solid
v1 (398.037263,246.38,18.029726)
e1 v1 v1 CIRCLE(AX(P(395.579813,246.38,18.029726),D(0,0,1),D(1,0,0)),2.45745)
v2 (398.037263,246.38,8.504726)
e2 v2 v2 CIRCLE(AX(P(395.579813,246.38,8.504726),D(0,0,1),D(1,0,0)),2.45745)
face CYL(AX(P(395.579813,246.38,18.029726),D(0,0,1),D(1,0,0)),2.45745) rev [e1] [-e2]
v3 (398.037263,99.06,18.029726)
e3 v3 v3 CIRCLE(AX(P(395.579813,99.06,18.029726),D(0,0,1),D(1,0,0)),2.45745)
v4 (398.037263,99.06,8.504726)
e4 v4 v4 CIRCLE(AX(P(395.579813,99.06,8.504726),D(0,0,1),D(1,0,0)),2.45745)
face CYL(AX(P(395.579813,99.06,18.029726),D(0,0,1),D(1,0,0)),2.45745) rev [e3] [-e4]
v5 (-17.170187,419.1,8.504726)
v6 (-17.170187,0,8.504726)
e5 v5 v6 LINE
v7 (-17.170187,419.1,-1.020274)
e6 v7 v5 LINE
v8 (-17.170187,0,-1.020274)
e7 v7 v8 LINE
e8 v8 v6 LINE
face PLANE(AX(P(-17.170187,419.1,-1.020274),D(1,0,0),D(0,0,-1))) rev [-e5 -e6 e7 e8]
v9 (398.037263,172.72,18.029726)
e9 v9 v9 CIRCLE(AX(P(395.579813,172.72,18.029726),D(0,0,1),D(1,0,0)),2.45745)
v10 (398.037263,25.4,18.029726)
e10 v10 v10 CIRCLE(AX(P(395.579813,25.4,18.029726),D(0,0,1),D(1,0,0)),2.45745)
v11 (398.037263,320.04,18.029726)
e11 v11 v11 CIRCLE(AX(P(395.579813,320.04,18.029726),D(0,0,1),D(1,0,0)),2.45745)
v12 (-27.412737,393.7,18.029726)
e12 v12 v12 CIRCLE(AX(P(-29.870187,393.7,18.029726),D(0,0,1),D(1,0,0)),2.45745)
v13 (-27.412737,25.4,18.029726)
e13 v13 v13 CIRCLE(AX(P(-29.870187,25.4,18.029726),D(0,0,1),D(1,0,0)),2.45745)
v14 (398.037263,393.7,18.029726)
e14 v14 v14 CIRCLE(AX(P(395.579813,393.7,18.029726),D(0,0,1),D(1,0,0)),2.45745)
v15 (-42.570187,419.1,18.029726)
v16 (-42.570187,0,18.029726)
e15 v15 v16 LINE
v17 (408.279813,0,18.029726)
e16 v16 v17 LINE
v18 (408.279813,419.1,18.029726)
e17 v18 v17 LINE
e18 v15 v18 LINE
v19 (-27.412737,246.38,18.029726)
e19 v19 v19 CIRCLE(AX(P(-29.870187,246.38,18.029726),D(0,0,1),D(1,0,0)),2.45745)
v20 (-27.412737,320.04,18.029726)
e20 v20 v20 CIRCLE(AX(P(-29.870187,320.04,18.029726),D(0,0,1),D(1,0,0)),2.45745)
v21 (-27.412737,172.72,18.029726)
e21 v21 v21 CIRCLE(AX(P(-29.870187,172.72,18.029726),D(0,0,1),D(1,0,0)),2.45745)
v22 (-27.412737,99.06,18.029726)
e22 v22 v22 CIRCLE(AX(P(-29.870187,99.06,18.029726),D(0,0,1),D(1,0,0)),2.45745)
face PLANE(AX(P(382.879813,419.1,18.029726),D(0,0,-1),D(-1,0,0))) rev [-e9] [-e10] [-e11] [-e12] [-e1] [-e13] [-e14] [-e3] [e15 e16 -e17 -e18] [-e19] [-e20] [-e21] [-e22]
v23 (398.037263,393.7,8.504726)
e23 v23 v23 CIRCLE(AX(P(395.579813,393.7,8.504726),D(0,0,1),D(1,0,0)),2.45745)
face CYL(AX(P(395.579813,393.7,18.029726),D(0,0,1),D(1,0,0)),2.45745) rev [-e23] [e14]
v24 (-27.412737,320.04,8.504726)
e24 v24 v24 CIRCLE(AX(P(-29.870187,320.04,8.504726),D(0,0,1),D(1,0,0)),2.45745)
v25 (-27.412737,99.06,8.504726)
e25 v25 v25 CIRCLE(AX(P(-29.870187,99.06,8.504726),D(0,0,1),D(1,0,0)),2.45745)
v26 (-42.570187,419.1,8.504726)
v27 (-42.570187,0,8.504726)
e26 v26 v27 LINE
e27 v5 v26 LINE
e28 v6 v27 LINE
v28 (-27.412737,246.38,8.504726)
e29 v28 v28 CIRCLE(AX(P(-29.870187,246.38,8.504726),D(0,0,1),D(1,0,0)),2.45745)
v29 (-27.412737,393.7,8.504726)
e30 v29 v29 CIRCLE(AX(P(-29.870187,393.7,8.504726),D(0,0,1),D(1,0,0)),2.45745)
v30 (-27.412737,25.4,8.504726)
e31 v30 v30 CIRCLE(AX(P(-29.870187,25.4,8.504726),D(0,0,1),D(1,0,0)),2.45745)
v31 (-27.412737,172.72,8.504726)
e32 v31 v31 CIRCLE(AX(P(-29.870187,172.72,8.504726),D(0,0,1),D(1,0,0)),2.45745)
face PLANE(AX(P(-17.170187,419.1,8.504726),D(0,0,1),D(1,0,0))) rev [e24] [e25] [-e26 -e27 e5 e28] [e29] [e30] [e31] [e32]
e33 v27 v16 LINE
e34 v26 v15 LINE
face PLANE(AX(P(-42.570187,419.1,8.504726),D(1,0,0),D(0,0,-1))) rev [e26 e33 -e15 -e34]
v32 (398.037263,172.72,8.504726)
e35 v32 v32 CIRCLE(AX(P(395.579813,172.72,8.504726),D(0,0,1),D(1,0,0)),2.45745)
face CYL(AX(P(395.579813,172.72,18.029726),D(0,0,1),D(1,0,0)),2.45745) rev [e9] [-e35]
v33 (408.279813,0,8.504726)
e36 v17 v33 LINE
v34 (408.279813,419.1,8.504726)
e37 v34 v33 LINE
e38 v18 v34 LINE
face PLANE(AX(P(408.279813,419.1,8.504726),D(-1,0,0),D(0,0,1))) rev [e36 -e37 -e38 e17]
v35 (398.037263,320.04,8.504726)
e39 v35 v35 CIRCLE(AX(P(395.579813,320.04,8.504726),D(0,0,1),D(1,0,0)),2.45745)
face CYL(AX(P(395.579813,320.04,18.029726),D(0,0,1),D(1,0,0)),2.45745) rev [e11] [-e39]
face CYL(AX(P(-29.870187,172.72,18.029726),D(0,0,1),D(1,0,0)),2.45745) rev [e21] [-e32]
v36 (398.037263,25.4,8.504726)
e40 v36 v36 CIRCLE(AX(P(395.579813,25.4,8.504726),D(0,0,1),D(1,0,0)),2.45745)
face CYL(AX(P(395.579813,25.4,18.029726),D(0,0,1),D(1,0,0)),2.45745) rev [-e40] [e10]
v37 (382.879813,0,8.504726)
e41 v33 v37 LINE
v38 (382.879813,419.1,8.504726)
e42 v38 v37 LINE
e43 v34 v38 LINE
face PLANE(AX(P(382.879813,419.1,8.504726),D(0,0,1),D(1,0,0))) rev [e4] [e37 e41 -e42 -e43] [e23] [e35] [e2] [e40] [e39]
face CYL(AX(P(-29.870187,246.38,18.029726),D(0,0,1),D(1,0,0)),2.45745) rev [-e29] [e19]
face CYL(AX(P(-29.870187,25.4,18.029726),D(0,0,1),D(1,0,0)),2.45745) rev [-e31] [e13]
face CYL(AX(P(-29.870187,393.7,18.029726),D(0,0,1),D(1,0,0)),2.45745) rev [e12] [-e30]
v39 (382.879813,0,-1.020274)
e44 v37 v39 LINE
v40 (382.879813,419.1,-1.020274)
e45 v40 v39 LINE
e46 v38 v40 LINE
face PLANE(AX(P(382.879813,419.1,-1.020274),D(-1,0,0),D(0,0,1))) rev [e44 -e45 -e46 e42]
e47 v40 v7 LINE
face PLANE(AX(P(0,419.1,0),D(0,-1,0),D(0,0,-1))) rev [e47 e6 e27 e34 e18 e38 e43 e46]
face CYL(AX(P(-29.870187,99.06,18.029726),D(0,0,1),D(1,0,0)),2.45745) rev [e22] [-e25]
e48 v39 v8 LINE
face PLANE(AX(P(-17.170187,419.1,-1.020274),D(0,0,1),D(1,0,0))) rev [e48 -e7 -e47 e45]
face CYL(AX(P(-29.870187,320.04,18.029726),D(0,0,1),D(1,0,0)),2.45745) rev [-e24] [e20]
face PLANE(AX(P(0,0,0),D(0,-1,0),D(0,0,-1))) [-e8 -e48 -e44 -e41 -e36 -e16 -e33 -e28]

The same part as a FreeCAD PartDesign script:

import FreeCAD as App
import Part
import Sketcher
from FreeCAD import Vector
Q = App.Units.Quantity

doc = App.newDocument("Part")
body = doc.addObject("PartDesign::Body", "Body")

# Sketch on XZ plane
sketch1 = body.newObject("Sketcher::SketchObject", "Sketch")
sketch1.AttachmentSupport = (doc.getObject("XZ_Plane"), [""])
sketch1.MapMode = "FlatFace"
sketch1.addGeometry([
    Part.LineSegment(Vector(383, -1, 0), Vector(-17, -1, 0)),  # 0
    Part.LineSegment(Vector(-17, -1, 0), Vector(-17, 9, 0)),  # 1
    Part.LineSegment(Vector(-17, 9, 0), Vector(-43, 9, 0)),  # 2
    Part.LineSegment(Vector(-43, 9, 0), Vector(-43, 18, 0)),  # 3
    Part.LineSegment(Vector(-43, 18, 0), Vector(408, 18, 0)),  # 4
    Part.LineSegment(Vector(408, 18, 0), Vector(408, 9, 0)),  # 5
    Part.LineSegment(Vector(408, 9, 0), Vector(383, 9, 0)),  # 6
    Part.LineSegment(Vector(383, 9, 0), Vector(383, -1, 0)),  # 7
], False)
sketch1.addConstraint([
    Sketcher.Constraint("Coincident", 0, 2, 1, 1),
    Sketcher.Constraint("Coincident", 1, 2, 2, 1),
    Sketcher.Constraint("Coincident", 2, 2, 3, 1),
    Sketcher.Constraint("Coincident", 3, 2, 4, 1),
    Sketcher.Constraint("Coincident", 4, 2, 5, 1),
    Sketcher.Constraint("Coincident", 5, 2, 6, 1),
    Sketcher.Constraint("Coincident", 6, 2, 7, 1),
    Sketcher.Constraint("Coincident", 7, 2, 0, 1),
    Sketcher.Constraint("Horizontal", 0),
    Sketcher.Constraint("Vertical", 1),
    Sketcher.Constraint("Horizontal", 2),
    Sketcher.Constraint("Vertical", 3),
    Sketcher.Constraint("Horizontal", 4),
    Sketcher.Constraint("Vertical", 5),
    Sketcher.Constraint("Horizontal", 6),
    Sketcher.Constraint("Vertical", 7),
    Sketcher.Constraint("Horizontal", 2, 2, 5, 2),
    Sketcher.Constraint("Equal", 2, 6),
    Sketcher.Constraint("Equal", 1, 3),
    Sketcher.Constraint("DistanceX", 2, 2, 2, 1, Q("1 in")),
    Sketcher.Constraint("DistanceX", 0, 2, 0, 1, Q("15.75 in")),
    Sketcher.Constraint("DistanceY", 1, 1, 1, 2, Q("0.375 in")),
    Sketcher.Constraint("DistanceX", 0, 2, -1, 1, Q("17.170187 mm")),
    Sketcher.Constraint("DistanceY", 0, 2, -1, 1, Q("1.020274 mm")),
])
pad1 = body.newObject("PartDesign::Pad", "Pad")
pad1.Profile = sketch1
pad1.Length = Q("16.5 in")
pad1.Reversed = True

# Sketch on XY plane
sketch2 = body.newObject("Sketcher::SketchObject", "Sketch001")
sketch2.AttachmentSupport = (doc.getObject("XY_Plane"), [""])
sketch2.MapMode = "FlatFace"
sketch2.AttachmentOffset = App.Placement(Vector(0, 0, 18.029726), App.Rotation())
sketch2.addGeometry([
    Part.Circle(Vector(-29.9, 393.7, 0), Vector(0, 0, 1), 2.5),  # 0
    Part.Circle(Vector(-29.9, 320, 0), Vector(0, 0, 1), 2.5),  # 1
    Part.Circle(Vector(-29.9, 246.4, 0), Vector(0, 0, 1), 2.5),  # 2
    Part.Circle(Vector(-29.9, 172.7, 0), Vector(0, 0, 1), 2.5),  # 3
    Part.Circle(Vector(-29.9, 99.1, 0), Vector(0, 0, 1), 2.5),  # 4
    Part.Circle(Vector(-29.9, 25.4, 0), Vector(0, 0, 1), 2.5),  # 5
    Part.Circle(Vector(395.6, 25.4, 0), Vector(0, 0, 1), 2.5),  # 6
    Part.Circle(Vector(395.6, 99.1, 0), Vector(0, 0, 1), 2.5),  # 7
    Part.Circle(Vector(395.6, 172.7, 0), Vector(0, 0, 1), 2.5),  # 8
    Part.Circle(Vector(395.6, 246.4, 0), Vector(0, 0, 1), 2.5),  # 9
    Part.Circle(Vector(395.6, 320, 0), Vector(0, 0, 1), 2.5),  # 10
    Part.Circle(Vector(395.6, 393.7, 0), Vector(0, 0, 1), 2.5),  # 11
], False)
sketch2.addConstraint([
    Sketcher.Constraint("Equal", 0, 1),
    Sketcher.Constraint("Equal", 1, 2),
    Sketcher.Constraint("Equal", 2, 3),
    Sketcher.Constraint("Equal", 3, 4),
    Sketcher.Constraint("Equal", 4, 5),
    Sketcher.Constraint("Equal", 5, 6),
    Sketcher.Constraint("Equal", 6, 7),
    Sketcher.Constraint("Equal", 7, 8),
    Sketcher.Constraint("Equal", 8, 9),
    Sketcher.Constraint("Equal", 9, 10),
    Sketcher.Constraint("Equal", 10, 11),
    Sketcher.Constraint("Horizontal", 5, 3, 6, 3),
    Sketcher.Constraint("Horizontal", 4, 3, 7, 3),
    Sketcher.Constraint("Horizontal", 3, 3, 8, 3),
    Sketcher.Constraint("Horizontal", 2, 3, 9, 3),
    Sketcher.Constraint("Horizontal", 1, 3, 10, 3),
    Sketcher.Constraint("Horizontal", 0, 3, 11, 3),
    Sketcher.Constraint("Vertical", 0, 3, 1, 3),
    Sketcher.Constraint("Vertical", 1, 3, 2, 3),
    Sketcher.Constraint("Vertical", 2, 3, 3, 3),
    Sketcher.Constraint("Vertical", 3, 3, 4, 3),
    Sketcher.Constraint("Vertical", 4, 3, 5, 3),
    Sketcher.Constraint("Vertical", 6, 3, 7, 3),
    Sketcher.Constraint("Vertical", 7, 3, 8, 3),
    Sketcher.Constraint("Vertical", 8, 3, 9, 3),
    Sketcher.Constraint("Vertical", 9, 3, 10, 3),
    Sketcher.Constraint("Vertical", 10, 3, 11, 3),
    Sketcher.Constraint("DistanceY", -1, 1, 5, 3, Q("1 in")),
    Sketcher.Constraint("Diameter", 0, Q("0.1935 in")),
    Sketcher.Constraint("DistanceY", -1, 1, 0, 3, Q("15.5 in")),
    Sketcher.Constraint("DistanceY", -1, 1, 1, 3, Q("12.6 in")),
    Sketcher.Constraint("DistanceY", -1, 1, 2, 3, Q("9.7 in")),
    Sketcher.Constraint("DistanceY", -1, 1, 3, 3, Q("6.8 in")),
    Sketcher.Constraint("DistanceY", -1, 1, 4, 3, Q("3.9 in")),
    Sketcher.Constraint("DistanceX", 5, 3, 6, 3, Q("16.75 in")),
    Sketcher.Constraint("DistanceX", 0, 3, -1, 1, Q("29.870187 mm")),
])
doc.recompute()
hole = body.newObject("PartDesign::Hole", "Hole")
hole.Profile = sketch2
hole.ThreadType = "None"
hole.Diameter = Q("0.1935 in")
hole.DepthType = "Dimension"
hole.Depth = Q("0.38 in")
hole.DrillPoint = "Angled"
hole.DrillPointAngle = 118

doc.recompute()
